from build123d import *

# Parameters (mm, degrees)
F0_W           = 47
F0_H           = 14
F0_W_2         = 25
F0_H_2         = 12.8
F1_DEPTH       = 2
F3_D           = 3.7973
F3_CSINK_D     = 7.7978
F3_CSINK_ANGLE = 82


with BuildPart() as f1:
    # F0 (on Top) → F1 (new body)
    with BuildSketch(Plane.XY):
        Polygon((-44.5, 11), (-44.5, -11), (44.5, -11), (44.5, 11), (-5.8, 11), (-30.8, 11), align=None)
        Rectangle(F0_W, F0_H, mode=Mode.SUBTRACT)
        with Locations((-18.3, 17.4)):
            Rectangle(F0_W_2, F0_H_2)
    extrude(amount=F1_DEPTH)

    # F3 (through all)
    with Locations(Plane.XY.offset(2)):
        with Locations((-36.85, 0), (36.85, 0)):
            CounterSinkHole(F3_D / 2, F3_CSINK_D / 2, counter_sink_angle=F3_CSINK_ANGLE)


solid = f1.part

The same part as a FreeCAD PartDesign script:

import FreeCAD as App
import Part
import Sketcher

V = App.Vector


def add_polygon(sketch, points):
    """Adds a closed chain of lines whose ends are joined by coincident constraints."""
    first, n = sketch.GeometryCount, len(points)
    for a, b in zip(points, points[1:] + points[:1]):
        sketch.addGeometry(Part.LineSegment(App.Vector(*a, 0), App.Vector(*b, 0)), False)
    for i in range(n):
        sketch.addConstraint(Sketcher.Constraint("Coincident", first + i, 2, first + (i + 1) % n, 1))

doc = App.newDocument("Part")
body = doc.addObject("PartDesign::Body", "Body")

sketch1 = body.newObject("Sketcher::SketchObject", "Sketch")
sketch1.AttachmentSupport = (doc.getObject("XY_Plane"), [""])
sketch1.MapMode = "FlatFace"
add_polygon(sketch1, [(-44.5, 11), (-44.5, -11), (44.5, -11), (44.5, 11), (-5.8, 11), (-5.8, 23.8), (-30.8, 23.8), (-30.8, 11)])
add_polygon(sketch1, [(23.5, -7), (-23.5, -7), (-23.5, 7), (23.5, 7)])
sketch1.addConstraint([
    Sketcher.Constraint("Vertical", 0),
    Sketcher.Constraint("Horizontal", 1),
    Sketcher.Constraint("Vertical", 2),
    Sketcher.Constraint("Horizontal", 3),
    Sketcher.Constraint("Vertical", 4),
    Sketcher.Constraint("Horizontal", 5),
    Sketcher.Constraint("Vertical", 6),
    Sketcher.Constraint("Horizontal", 7),
    Sketcher.Constraint("Horizontal", 8),
    Sketcher.Constraint("Vertical", 9),
    Sketcher.Constraint("Horizontal", 10),
    Sketcher.Constraint("Vertical", 11),
    Sketcher.Constraint("Symmetric", 0, 2, 2, 2, -1, 1),
    Sketcher.Constraint("Symmetric", 8, 2, 10, 2, -1, 1),
    Sketcher.Constraint("Horizontal", 3, 2, 6, 2),
    Sketcher.Constraint("DistanceX", 1, 1, 1, 2, 89.0),
    Sketcher.Constraint("DistanceX", 5, 2, 5, 1, 25.0),
    Sketcher.Constraint("DistanceX", 8, 2, 8, 1, 47.0),
    Sketcher.Constraint("DistanceY", 0, 2, 0, 1, 22.0),
    Sketcher.Constraint("DistanceY", 9, 1, 9, 2, 14.0),
    Sketcher.Constraint("DistanceX", 3, 2, 3, 1, 50.3),
    Sketcher.Constraint("DistanceY", 4, 1, 4, 2, 12.8),
])
pad1 = body.newObject("PartDesign::Pad", "Pad")
pad1.Profile = sketch1
pad1.Length = 2

sketch2 = body.newObject("Sketcher::SketchObject", "Sketch001")
sketch2.AttachmentSupport = (doc.getObject("XY_Plane"), [""])
sketch2.MapMode = "FlatFace"
sketch2.AttachmentOffset = App.Placement(V(0, 0, 2), App.Rotation())
sketch2.addGeometry([
    Part.Circle(V(-36.85, 0, 0), V(0, 0, 1), 1.89865),
    Part.Circle(V(36.85, 0, 0), V(0, 0, 1), 1.89865),
], False)
sketch2.addConstraint([
    Sketcher.Constraint("Equal", 0, 1),
    Sketcher.Constraint("Symmetric", 0, 3, 1, 3, -1, 1),
    Sketcher.Constraint("PointOnObject", 0, 3, -1),
    Sketcher.Constraint("Diameter", 0, 3.7973),
    Sketcher.Constraint("DistanceX", 0, 3, 1, 3, 73.7),
])
doc.recompute()
hole = body.newObject("PartDesign::Hole", "Hole")
hole.Profile = sketch2
hole.ThreadType = "None"
hole.Diameter = 3.7973
hole.DepthType = "ThroughAll"
hole.HoleCutType = "Countersink"
hole.HoleCutDiameter = 7.7978
hole.HoleCutCountersinkAngle = 82

doc.recompute()
